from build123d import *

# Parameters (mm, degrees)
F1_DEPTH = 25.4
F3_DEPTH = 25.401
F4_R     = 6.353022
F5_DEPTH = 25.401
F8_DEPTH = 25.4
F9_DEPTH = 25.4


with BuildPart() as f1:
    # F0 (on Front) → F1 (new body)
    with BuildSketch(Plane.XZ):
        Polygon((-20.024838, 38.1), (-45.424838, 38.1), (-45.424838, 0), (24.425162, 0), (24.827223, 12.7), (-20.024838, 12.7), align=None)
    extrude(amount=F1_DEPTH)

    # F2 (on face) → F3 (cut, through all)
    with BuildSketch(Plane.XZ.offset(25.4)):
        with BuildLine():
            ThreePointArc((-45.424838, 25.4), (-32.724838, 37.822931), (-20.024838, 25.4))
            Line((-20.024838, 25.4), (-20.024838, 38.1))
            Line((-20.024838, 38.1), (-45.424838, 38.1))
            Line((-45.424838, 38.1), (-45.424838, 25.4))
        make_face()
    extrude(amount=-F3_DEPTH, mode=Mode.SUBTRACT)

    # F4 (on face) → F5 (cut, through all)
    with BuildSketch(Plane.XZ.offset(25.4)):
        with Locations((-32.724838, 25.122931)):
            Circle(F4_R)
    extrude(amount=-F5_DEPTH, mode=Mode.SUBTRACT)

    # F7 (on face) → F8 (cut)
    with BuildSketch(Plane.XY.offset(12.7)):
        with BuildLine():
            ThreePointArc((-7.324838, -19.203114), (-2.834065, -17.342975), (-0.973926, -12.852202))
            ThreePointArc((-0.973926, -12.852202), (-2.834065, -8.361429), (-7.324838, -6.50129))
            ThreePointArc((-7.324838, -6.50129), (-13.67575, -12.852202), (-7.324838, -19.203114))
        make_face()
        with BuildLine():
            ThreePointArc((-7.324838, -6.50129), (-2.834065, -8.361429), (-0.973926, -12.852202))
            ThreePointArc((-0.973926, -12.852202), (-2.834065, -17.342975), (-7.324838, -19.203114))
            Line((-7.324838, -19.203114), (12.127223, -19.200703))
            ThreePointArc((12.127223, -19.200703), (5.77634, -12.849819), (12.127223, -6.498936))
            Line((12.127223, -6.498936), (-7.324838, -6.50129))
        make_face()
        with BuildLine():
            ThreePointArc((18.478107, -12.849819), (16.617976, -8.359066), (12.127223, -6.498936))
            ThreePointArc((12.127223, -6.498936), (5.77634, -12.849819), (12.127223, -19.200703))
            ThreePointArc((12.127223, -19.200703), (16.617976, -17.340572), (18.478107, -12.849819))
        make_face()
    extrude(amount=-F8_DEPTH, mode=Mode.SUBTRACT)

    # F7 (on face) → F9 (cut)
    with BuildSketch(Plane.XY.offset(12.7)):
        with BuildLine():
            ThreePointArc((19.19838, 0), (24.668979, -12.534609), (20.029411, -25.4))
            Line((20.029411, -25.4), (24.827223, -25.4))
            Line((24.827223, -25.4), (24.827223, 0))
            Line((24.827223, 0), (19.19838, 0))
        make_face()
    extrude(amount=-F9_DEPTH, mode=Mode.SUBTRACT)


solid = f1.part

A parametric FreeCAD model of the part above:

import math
import FreeCAD as App
import Part
import Sketcher
Q = App.Units.Quantity

doc = App.newDocument("Part")
body = doc.addObject("PartDesign::Body", "Body")

# Sketch on XZ plane
sketch1 = body.newObject("Sketcher::SketchObject", "Sketch")
sketch1.AttachmentSupport = (doc.getObject("XZ_Plane"), [""])
sketch1.MapMode = "FlatFace"
sketch1.addGeometry(Part.LineSegment(App.Vector(-20, 38, 0), App.Vector(-45, 38, 0)), False)
sketch1.addGeometry(Part.LineSegment(App.Vector(-45, 38, 0), App.Vector(-45, 0, 0)), False)
sketch1.addGeometry(Part.LineSegment(App.Vector(-45, 0, 0), App.Vector(24, 0, 0)), False)
sketch1.addGeometry(Part.LineSegment(App.Vector(24, 0, 0), App.Vector(25, 13, 0)), False)
sketch1.addGeometry(Part.LineSegment(App.Vector(25, 13, 0), App.Vector(-20, 13, 0)), False)
sketch1.addGeometry(Part.LineSegment(App.Vector(-20, 13, 0), App.Vector(-20, 38, 0)), False)
sketch1.addConstraint(Sketcher.Constraint("Coincident", 0, 2, 1, 1))
sketch1.addConstraint(Sketcher.Constraint("Coincident", 1, 2, 2, 1))
sketch1.addConstraint(Sketcher.Constraint("Coincident", 2, 2, 3, 1))
sketch1.addConstraint(Sketcher.Constraint("Coincident", 3, 2, 4, 1))
sketch1.addConstraint(Sketcher.Constraint("Coincident", 4, 2, 5, 1))
sketch1.addConstraint(Sketcher.Constraint("Coincident", 5, 2, 0, 1))
sketch1.addConstraint(Sketcher.Constraint("Horizontal", 0))
sketch1.addConstraint(Sketcher.Constraint("Vertical", 1))
sketch1.addConstraint(Sketcher.Constraint("Horizontal", 2))
sketch1.addConstraint(Sketcher.Constraint("Horizontal", 4))
sketch1.addConstraint(Sketcher.Constraint("Vertical", 5))
sketch1.addConstraint(Sketcher.Constraint("PointOnObject", 1, 2, -1))
sketch1.addConstraint(Sketcher.Constraint("Equal", 0, 5))
sketch1.addConstraint(Sketcher.Constraint("DistanceX", 0, 2, 0, 1, Q("1 in")))
sketch1.addConstraint(Sketcher.Constraint("DistanceY", 1, 2, 1, 1, Q("1.5 in")))
sketch1.addConstraint(Sketcher.Constraint("DistanceX", 2, 1, 2, 2, Q("2.75 in")))
sketch1.addConstraint(Sketcher.Constraint("DistanceX", 4, 2, 4, 1, 44.852061))
sketch1.addConstraint(Sketcher.Constraint("DistanceX", -1, 1, 2, 2, 24.425162))
pad1 = body.newObject("PartDesign::Pad", "Pad")
pad1.Profile = sketch1
pad1.Length = Q("1 in")

# Sketch on XZ plane
sketch2 = body.newObject("Sketcher::SketchObject", "Sketch001")
sketch2.AttachmentSupport = (doc.getObject("XZ_Plane"), [""])
sketch2.MapMode = "FlatFace"
sketch2.AttachmentOffset = App.Placement(App.Vector(0, 0, 1 * 25.4), App.Rotation())
sketch2.addGeometry(Part.ArcOfCircle(Part.Circle(App.Vector(-33, 25, 0), App.Vector(0, 0, 1), 13), math.radians(1), math.radians(179)), False)
sketch2.addGeometry(Part.LineSegment(App.Vector(-20, 25, 0), App.Vector(-20, 38, 0)), False)
sketch2.addGeometry(Part.LineSegment(App.Vector(-20, 38, 0), App.Vector(-45, 38, 0)), False)
sketch2.addGeometry(Part.LineSegment(App.Vector(-45, 38, 0), App.Vector(-45, 25, 0)), False)
sketch2.addConstraint(Sketcher.Constraint("Coincident", 0, 1, 1, 1))
sketch2.addConstraint(Sketcher.Constraint("Coincident", 1, 2, 2, 1))
sketch2.addConstraint(Sketcher.Constraint("Coincident", 2, 2, 3, 1))
sketch2.addConstraint(Sketcher.Constraint("Coincident", 3, 2, 0, 2))
sketch2.addConstraint(Sketcher.Constraint("Vertical", 1))
sketch2.addConstraint(Sketcher.Constraint("Horizontal", 2))
sketch2.addConstraint(Sketcher.Constraint("Vertical", 3))
sketch2.addConstraint(Sketcher.Constraint("Horizontal", 0, 1, 3, 2))
sketch2.addConstraint(Sketcher.Constraint("DistanceX", 2, 2, 2, 1, Q("1 in")))
sketch2.addConstraint(Sketcher.Constraint("DistanceY", 1, 1, 1, 2, Q("0.5 in")))
sketch2.addConstraint(Sketcher.Constraint("DistanceY", -1, 1, 0, 1, Q("1 in")))
sketch2.addConstraint(Sketcher.Constraint("Radius", 0, 12.70309))
sketch2.addConstraint(Sketcher.Constraint("DistanceX", 0, 1, -1, 1, 20.024838))
pocket1 = body.newObject("PartDesign::Pocket", "Pocket")
pocket1.Profile = sketch2
pocket1.Type = "ThroughAll"

# Sketch on XZ plane
sketch3 = body.newObject("Sketcher::SketchObject", "Sketch002")
sketch3.AttachmentSupport = (doc.getObject("XZ_Plane"), [""])
sketch3.MapMode = "FlatFace"
sketch3.AttachmentOffset = App.Placement(App.Vector(0, 0, 1 * 25.4), App.Rotation())
sketch3.addGeometry(Part.Circle(App.Vector(-33, 25, 0), App.Vector(0, 0, 1), 6), False)
sketch3.addConstraint(Sketcher.Constraint("Diameter", 0, 12.706044))
sketch3.addConstraint(Sketcher.Constraint("DistanceY", -1, 1, 0, 3, 25.122931))
sketch3.addConstraint(Sketcher.Constraint("DistanceX", 0, 3, -1, 1, 32.724838))
pocket2 = body.newObject("PartDesign::Pocket", "Pocket001")
pocket2.Profile = sketch3
pocket2.Type = "ThroughAll"

# Sketch on XY plane
sketch4 = body.newObject("Sketcher::SketchObject", "Sketch003")
sketch4.AttachmentSupport = (doc.getObject("XY_Plane"), [""])
sketch4.MapMode = "FlatFace"
sketch4.AttachmentOffset = App.Placement(App.Vector(0, 0, 0.5 * 25.4), App.Rotation())
sketch4.addGeometry(Part.ArcOfCircle(Part.Circle(App.Vector(-7, -13, 0), App.Vector(0, 0, 1), 6), math.radians(90), math.radians(270)), False)
sketch4.addGeometry(Part.LineSegment(App.Vector(-7, -19, 0), App.Vector(12, -19, 0)), False)
sketch4.addGeometry(Part.ArcOfCircle(Part.Circle(App.Vector(12, -13, 0), App.Vector(0, 0, 1), 6), math.radians(-90), math.radians(0)), False)
sketch4.addGeometry(Part.ArcOfCircle(Part.Circle(App.Vector(12, -13, 0), App.Vector(0, 0, 1), 6), math.radians(0), math.radians(90)), False)
sketch4.addGeometry(Part.LineSegment(App.Vector(12, -6, 0), App.Vector(-7, -7, 0)), False)
sketch4.addConstraint(Sketcher.Constraint("Coincident", 0, 2, 1, 1))
sketch4.addConstraint(Sketcher.Constraint("Coincident", 1, 2, 2, 1))
sketch4.addConstraint(Sketcher.Constraint("Tangent", 2, 2, 3, 1))
sketch4.addConstraint(Sketcher.Constraint("Coincident", 3, 2, 4, 1))
sketch4.addConstraint(Sketcher.Constraint("Coincident", 4, 2, 0, 1))
sketch4.addConstraint(Sketcher.Constraint("Equal", 2, 3))
sketch4.addConstraint(Sketcher.Constraint("Horizontal", 3, 3, 2, 2))
sketch4.addConstraint(Sketcher.Constraint("Vertical", 3, 3, 1, 2))
sketch4.addConstraint(Sketcher.Constraint("Vertical", 1, 2, 3, 2))
sketch4.addConstraint(Sketcher.Constraint("Vertical", 0, 2, 4, 2))
sketch4.addConstraint(Sketcher.Constraint("Radius", 0, 6.350912))
sketch4.addConstraint(Sketcher.Constraint("Radius", 2, 6.350884))
sketch4.addConstraint(Sketcher.Constraint("DistanceY", 1, 2, 0, 3, 6.348501))
sketch4.addConstraint(Sketcher.Constraint("Distance", 1, 19.452061))
sketch4.addConstraint(Sketcher.Constraint("DistanceY", 2, 3, -1, 1, 12.849819))
sketch4.addConstraint(Sketcher.Constraint("DistanceX", 0, 3, 2, 3, 19.452061))
sketch4.addConstraint(Sketcher.Constraint("DistanceX", 0, 3, -1, 1, 7.324838))
pocket3 = body.newObject("PartDesign::Pocket", "Pocket002")
pocket3.Profile = sketch4
pocket3.Length = Q("1 in")

# Sketch on XY plane
sketch5 = body.newObject("Sketcher::SketchObject", "Sketch004")
sketch5.AttachmentSupport = (doc.getObject("XY_Plane"), [""])
sketch5.MapMode = "FlatFace"
sketch5.AttachmentOffset = App.Placement(App.Vector(0, 0, 0.5 * 25.4), App.Rotation())
sketch5.addGeometry(Part.ArcOfCircle(Part.Circle(App.Vector(6.2, -13.1, 0), App.Vector(0, 0, 1), 18.5), math.radians(-42), math.radians(45)), False)
sketch5.addGeometry(Part.LineSegment(App.Vector(20, -25.4, 0), App.Vector(24.8, -25.4, 0)), False)
sketch5.addGeometry(Part.LineSegment(App.Vector(24.8, -25.4, 0), App.Vector(24.8, 0, 0)), False)
sketch5.addGeometry(Part.LineSegment(App.Vector(24.8, 0, 0), App.Vector(19.2, 0, 0)), False)
sketch5.addConstraint(Sketcher.Constraint("Coincident", 0, 1, 1, 1))
sketch5.addConstraint(Sketcher.Constraint("Coincident", 1, 2, 2, 1))
sketch5.addConstraint(Sketcher.Constraint("Coincident", 2, 2, 3, 1))
sketch5.addConstraint(Sketcher.Constraint("Coincident", 3, 2, 0, 2))
sketch5.addConstraint(Sketcher.Constraint("Horizontal", 1))
sketch5.addConstraint(Sketcher.Constraint("Vertical", 2))
sketch5.addConstraint(Sketcher.Constraint("Horizontal", 3))
sketch5.addConstraint(Sketcher.Constraint("PointOnObject", 2, 2, -1))
sketch5.addConstraint(Sketcher.Constraint("DistanceY", 2, 1, 2, 2, Q("1 in")))
sketch5.addConstraint(Sketcher.Constraint("Radius", 0, 18.490678))
sketch5.addConstraint(Sketcher.Constraint("DistanceX", 1, 1, 1, 2, 4.797812))
sketch5.addConstraint(Sketcher.Constraint("DistanceX", 3, 2, 3, 1, 5.628843))
sketch5.addConstraint(Sketcher.Constraint("DistanceX", -1, 1, 0, 3, 6.188189))
pocket4 = body.newObject("PartDesign::Pocket", "Pocket003")
pocket4.Profile = sketch5
pocket4.Length = Q("1 in")

doc.recompute()
